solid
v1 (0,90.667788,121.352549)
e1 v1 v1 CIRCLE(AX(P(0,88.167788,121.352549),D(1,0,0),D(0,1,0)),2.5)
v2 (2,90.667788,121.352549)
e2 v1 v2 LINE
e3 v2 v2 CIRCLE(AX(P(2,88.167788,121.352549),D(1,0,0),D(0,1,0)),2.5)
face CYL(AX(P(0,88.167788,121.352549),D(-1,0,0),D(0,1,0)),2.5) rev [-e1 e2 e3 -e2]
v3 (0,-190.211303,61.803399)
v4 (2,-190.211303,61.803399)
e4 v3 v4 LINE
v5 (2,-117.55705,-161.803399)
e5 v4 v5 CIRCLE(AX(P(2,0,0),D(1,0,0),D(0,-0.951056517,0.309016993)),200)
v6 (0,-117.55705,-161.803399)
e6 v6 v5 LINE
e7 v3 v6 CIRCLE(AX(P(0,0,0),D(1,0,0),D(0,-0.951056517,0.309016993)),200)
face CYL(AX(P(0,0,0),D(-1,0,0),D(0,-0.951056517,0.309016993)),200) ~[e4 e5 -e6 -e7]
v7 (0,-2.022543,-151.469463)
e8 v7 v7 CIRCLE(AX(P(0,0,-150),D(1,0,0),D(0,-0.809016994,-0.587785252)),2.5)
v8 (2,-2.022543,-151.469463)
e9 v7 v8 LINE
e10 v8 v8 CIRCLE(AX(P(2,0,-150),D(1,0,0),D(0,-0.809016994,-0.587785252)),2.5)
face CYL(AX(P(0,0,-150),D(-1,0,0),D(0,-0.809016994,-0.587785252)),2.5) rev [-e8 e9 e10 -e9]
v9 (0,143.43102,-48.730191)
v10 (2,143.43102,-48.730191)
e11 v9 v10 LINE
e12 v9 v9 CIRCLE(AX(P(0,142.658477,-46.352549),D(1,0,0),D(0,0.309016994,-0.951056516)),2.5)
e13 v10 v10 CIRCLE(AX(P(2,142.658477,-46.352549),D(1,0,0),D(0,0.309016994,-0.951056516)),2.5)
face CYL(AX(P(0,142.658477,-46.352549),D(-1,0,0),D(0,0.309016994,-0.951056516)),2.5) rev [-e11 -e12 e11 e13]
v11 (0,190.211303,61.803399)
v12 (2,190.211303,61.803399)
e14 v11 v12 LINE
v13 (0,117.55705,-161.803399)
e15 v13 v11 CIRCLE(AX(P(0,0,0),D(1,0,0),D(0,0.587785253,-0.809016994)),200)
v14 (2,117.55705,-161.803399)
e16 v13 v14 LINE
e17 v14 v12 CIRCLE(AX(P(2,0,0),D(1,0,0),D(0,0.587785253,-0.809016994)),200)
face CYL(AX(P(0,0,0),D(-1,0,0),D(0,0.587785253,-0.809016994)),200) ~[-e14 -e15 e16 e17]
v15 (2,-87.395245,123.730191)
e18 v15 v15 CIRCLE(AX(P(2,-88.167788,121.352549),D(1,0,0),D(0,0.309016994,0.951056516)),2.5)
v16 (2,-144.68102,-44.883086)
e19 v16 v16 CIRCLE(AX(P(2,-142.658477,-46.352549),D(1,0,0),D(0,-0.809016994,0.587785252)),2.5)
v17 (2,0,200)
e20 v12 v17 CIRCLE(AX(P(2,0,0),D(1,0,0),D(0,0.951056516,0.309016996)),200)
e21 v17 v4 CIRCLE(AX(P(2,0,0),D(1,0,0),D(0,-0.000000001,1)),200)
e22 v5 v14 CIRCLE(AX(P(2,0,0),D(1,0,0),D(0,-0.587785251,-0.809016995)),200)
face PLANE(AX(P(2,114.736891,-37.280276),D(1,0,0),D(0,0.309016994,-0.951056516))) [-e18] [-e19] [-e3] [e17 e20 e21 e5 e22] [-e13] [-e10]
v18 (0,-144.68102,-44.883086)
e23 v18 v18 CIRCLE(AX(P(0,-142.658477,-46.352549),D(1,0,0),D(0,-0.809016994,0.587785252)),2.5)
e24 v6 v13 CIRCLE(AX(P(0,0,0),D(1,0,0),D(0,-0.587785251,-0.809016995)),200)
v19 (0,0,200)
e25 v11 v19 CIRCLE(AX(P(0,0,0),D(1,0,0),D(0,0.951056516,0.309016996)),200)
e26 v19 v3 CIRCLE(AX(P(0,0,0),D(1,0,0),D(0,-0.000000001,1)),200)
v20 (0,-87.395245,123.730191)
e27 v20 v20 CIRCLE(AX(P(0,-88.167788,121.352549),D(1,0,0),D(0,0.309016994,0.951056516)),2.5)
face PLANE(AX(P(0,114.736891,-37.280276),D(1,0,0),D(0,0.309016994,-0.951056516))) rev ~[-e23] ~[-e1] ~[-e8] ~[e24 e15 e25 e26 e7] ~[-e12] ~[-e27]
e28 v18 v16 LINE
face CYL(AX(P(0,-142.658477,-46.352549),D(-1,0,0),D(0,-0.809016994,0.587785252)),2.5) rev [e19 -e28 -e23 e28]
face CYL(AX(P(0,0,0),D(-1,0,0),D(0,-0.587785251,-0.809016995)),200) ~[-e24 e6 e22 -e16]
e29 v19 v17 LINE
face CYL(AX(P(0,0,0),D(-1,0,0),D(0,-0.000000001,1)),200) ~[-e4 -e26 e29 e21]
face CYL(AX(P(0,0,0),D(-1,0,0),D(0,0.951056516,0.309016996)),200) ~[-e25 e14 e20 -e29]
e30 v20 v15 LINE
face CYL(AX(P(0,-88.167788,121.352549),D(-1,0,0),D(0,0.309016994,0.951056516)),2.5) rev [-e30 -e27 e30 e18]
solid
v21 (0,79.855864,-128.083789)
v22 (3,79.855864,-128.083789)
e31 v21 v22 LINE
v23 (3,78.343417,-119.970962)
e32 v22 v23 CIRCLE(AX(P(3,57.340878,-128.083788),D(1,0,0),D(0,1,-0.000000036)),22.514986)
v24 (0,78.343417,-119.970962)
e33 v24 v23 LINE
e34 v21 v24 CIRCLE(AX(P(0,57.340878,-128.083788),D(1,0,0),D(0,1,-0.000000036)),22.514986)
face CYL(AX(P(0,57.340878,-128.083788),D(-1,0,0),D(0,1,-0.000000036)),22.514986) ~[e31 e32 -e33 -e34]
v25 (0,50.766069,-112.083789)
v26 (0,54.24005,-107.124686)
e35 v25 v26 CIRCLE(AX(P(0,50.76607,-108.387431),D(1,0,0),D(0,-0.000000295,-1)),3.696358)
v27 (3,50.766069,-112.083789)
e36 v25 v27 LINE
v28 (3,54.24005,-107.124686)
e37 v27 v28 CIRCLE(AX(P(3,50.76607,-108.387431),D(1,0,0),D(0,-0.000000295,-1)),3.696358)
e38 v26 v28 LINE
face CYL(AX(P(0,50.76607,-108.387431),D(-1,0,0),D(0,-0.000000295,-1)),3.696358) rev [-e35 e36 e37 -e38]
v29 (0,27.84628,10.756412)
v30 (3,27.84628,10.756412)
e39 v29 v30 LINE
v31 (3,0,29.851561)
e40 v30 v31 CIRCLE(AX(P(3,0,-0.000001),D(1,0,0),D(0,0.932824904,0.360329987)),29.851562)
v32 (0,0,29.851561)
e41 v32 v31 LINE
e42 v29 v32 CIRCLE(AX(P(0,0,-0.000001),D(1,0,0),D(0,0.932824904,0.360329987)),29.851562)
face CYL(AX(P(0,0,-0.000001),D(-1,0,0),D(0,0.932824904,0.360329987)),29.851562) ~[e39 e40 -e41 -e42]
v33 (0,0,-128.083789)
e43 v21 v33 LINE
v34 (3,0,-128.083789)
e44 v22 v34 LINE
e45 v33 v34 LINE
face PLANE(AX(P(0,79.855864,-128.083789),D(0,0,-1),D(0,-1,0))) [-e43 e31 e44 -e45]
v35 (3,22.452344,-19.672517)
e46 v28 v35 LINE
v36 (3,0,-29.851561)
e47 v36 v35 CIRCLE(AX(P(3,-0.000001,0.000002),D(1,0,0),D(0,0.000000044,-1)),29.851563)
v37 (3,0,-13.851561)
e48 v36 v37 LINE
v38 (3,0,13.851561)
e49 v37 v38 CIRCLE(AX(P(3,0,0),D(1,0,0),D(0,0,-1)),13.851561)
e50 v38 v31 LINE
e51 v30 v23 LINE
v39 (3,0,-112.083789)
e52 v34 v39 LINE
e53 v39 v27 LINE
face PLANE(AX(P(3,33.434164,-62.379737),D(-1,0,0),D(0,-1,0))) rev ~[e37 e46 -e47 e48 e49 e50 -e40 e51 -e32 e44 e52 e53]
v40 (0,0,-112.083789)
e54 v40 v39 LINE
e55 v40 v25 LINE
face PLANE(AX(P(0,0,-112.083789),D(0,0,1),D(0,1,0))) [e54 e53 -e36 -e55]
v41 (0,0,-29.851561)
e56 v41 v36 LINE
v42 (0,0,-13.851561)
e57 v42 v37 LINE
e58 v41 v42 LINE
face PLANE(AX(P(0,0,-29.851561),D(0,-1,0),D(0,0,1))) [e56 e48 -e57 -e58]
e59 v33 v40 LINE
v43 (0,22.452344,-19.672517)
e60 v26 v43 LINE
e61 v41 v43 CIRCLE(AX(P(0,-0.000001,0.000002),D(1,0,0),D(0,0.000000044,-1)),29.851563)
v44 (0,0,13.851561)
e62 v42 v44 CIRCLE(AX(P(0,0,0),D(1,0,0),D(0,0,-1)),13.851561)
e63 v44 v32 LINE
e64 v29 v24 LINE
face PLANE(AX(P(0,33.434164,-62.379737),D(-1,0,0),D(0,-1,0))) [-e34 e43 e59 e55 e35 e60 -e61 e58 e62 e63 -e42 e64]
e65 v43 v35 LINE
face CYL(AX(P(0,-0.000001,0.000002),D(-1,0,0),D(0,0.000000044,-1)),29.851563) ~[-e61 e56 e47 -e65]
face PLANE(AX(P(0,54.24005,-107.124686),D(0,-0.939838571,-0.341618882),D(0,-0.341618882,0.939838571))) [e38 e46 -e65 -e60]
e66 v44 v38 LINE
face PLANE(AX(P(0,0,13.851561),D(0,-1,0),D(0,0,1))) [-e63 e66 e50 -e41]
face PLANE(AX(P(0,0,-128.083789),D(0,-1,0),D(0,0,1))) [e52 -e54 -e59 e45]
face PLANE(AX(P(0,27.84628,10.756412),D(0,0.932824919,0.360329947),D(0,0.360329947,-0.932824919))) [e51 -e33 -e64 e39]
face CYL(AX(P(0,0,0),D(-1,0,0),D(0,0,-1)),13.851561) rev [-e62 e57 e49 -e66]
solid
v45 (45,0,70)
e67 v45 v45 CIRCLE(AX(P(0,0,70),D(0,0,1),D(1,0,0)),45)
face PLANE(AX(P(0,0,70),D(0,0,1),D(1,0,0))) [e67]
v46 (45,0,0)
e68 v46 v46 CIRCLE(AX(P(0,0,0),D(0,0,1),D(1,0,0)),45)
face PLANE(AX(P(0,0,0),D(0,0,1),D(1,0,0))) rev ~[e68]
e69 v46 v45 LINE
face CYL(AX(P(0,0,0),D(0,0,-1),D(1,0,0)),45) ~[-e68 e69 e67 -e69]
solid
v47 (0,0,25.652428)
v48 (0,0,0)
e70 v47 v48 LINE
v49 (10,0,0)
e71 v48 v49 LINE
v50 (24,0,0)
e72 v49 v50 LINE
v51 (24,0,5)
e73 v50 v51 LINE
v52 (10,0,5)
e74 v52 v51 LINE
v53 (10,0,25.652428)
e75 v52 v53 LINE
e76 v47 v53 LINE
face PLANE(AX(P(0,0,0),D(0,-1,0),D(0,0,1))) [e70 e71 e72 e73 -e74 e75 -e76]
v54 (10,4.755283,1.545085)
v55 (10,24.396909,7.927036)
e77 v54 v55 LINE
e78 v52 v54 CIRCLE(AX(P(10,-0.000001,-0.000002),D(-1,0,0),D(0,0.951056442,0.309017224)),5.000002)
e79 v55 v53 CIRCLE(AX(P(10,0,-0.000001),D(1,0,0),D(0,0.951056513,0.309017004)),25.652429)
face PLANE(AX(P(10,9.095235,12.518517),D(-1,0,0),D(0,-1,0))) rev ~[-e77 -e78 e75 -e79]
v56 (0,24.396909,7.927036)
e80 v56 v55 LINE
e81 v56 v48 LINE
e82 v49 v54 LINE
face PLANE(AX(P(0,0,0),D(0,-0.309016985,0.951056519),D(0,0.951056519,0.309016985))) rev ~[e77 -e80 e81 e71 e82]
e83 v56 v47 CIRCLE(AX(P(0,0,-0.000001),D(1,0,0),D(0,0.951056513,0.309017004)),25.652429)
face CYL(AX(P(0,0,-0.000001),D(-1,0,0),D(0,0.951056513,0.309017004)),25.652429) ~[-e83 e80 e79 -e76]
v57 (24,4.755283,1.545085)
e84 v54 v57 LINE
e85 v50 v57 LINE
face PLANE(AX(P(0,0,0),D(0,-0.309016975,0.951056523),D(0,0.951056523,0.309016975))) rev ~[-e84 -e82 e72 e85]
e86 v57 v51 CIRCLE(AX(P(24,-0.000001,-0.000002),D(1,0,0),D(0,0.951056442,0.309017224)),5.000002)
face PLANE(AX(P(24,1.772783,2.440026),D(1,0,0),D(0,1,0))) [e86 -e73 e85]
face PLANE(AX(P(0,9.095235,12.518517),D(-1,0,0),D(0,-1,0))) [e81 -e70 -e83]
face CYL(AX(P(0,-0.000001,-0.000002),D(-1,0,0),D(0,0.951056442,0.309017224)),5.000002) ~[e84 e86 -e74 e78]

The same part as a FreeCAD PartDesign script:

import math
import FreeCAD as App
import Part
import Sketcher
from FreeCAD import Vector
Q = App.Units.Quantity

doc = App.newDocument("Part")
body = doc.addObject("PartDesign::Body", "Body")

sketch1 = body.newObject("Sketcher::SketchObject", "Sketch")
sketch1.AttachmentSupport = (doc.getObject("YZ_Plane"), [""])
sketch1.MapMode = "FlatFace"
sketch1.addGeometry([
    Part.ArcOfCircle(Part.Circle(Vector(0, 0, 0), Vector(0, 0, 1), 13.851561), math.radians(-90), math.radians(90)),
    Part.LineSegment(Vector(0, -13.851561, 0), Vector(0, -29.851561, 0)),
    Part.ArcOfCircle(Part.Circle(Vector(-0.000001, 0.000002, 0), Vector(0, 0, 1), 29.851563), math.radians(-89.999997), math.radians(-41.224517)),
    Part.LineSegment(Vector(22.452344, -19.672517, 0), Vector(54.24005, -107.124686, 0)),
    Part.ArcOfCircle(Part.Circle(Vector(50.76607, -108.387431, 0), Vector(0, 0, 1), 3.696358), math.radians(-90.000017), math.radians(19.975527)),
    Part.LineSegment(Vector(50.766069, -112.083789, 0), Vector(0, -112.083789, 0)),
    Part.LineSegment(Vector(0, -112.083789, 0), Vector(0, -128.083789, 0)),
    Part.LineSegment(Vector(0, -128.083789, 0), Vector(79.855864, -128.083789, 0)),
    Part.ArcOfCircle(Part.Circle(Vector(57.340878, -128.083788, 0), Vector(0, 0, 1), 22.514986), math.radians(-0.000002), math.radians(21.120468)),
    Part.LineSegment(Vector(78.343417, -119.970962, 0), Vector(27.84628, 10.756412, 0)),
    Part.ArcOfCircle(Part.Circle(Vector(0, -0.000001, 0), Vector(0, 0, 1), 29.851562), math.radians(21.120463), math.radians(89.999999)),
    Part.LineSegment(Vector(0, 29.851561, 0), Vector(0, 13.851561, 0)),
], False)
sketch1.addConstraint([
    Sketcher.Constraint("Coincident", 0, 1, 1, 1),
    Sketcher.Constraint("Coincident", 1, 2, 2, 1),
    Sketcher.Constraint("Coincident", 2, 2, 3, 1),
    Sketcher.Constraint("Coincident", 3, 2, 4, 2),
    Sketcher.Constraint("Coincident", 4, 1, 5, 1),
    Sketcher.Constraint("Coincident", 5, 2, 6, 1),
    Sketcher.Constraint("Coincident", 6, 2, 7, 1),
    Sketcher.Constraint("Coincident", 7, 2, 8, 1),
    Sketcher.Constraint("Coincident", 8, 2, 9, 1),
    Sketcher.Constraint("Coincident", 9, 2, 10, 1),
    Sketcher.Constraint("Coincident", 10, 2, 11, 1),
    Sketcher.Constraint("Coincident", 11, 2, 0, 2),
    Sketcher.Constraint("Vertical", 1),
    Sketcher.Constraint("Horizontal", 5),
    Sketcher.Constraint("Vertical", 6),
    Sketcher.Constraint("Horizontal", 7),
    Sketcher.Constraint("Vertical", 11),
    Sketcher.Constraint("Coincident", 0, 3, -1, 1),
    Sketcher.Constraint("Coincident", 2, 3, -1, 1),
    Sketcher.Constraint("Coincident", 10, 3, -1, 1),
    Sketcher.Constraint("PointOnObject", 0, 1, -2),
    Sketcher.Constraint("PointOnObject", 5, 2, -2),
    Sketcher.Constraint("PointOnObject", 10, 2, -2),
    Sketcher.Constraint("DistanceY", 1, 2, 1, 1, Q("16 mm")),
    Sketcher.Constraint("DistanceY", 6, 2, 6, 1, Q("16 mm")),
    Sketcher.Constraint("DistanceY", 11, 2, 11, 1, Q("16 mm")),
    Sketcher.Constraint("DistanceY", 8, 3, 4, 1, Q("15.999999 mm")),
    Sketcher.Constraint("Radius", 0, Q("13.851561 mm")),
    Sketcher.Constraint("Radius", 4, Q("3.696358 mm")),
    Sketcher.Constraint("Radius", 8, Q("22.514986 mm")),
    Sketcher.Constraint("DistanceX", 5, 2, 5, 1, Q("50.766069 mm")),
    Sketcher.Constraint("DistanceX", 7, 1, 7, 2, Q("79.855864 mm")),
    Sketcher.Constraint("DistanceX", -1, 1, 4, 3, Q("50.76607 mm")),
    Sketcher.Constraint("DistanceY", 4, 3, -1, 1, Q("108.387431 mm")),
    Sketcher.Constraint("DistanceX", -1, 1, 3, 2, Q("54.24005 mm")),
    Sketcher.Constraint("DistanceY", 8, 2, -1, 1, Q("119.970962 mm")),
    Sketcher.Constraint("DistanceX", -1, 1, 9, 2, Q("27.84628 mm")),
    Sketcher.Constraint("DistanceY", 2, 2, 2, 3, Q("19.672519 mm")),
])
pad1 = body.newObject("PartDesign::Pad", "Pad")
pad1.Profile = sketch1
pad1.Length = 3
body2 = doc.addObject("PartDesign::Body", "Body001")

sketch2 = body2.newObject("Sketcher::SketchObject", "Sketch001")
sketch2.AttachmentSupport = (doc.getObject("YZ_Plane001"), [""])
sketch2.MapMode = "FlatFace"
sketch2.addGeometry([
    Part.LineSegment(Vector(0, 26, 0), Vector(0, 0, 0)),
    Part.LineSegment(Vector(0, 0, 0), Vector(24, 8, 0)),
    Part.ArcOfCircle(Part.Circle(Vector(0, 0, 0), Vector(0, 0, 1), 26), math.radians(18), math.radians(90)),
], False)
sketch2.addConstraint([
    Sketcher.Constraint("Coincident", 0, 2, 1, 1),
    Sketcher.Constraint("Coincident", 1, 2, 2, 1),
    Sketcher.Constraint("Coincident", 2, 2, 0, 1),
    Sketcher.Constraint("Vertical", 0),
    Sketcher.Constraint("Coincident", 2, 3, -1, 1),
    Sketcher.Constraint("Coincident", 0, 2, -1, 1),
    Sketcher.Constraint("Angle", 1, Q("17.999999 deg")),
    Sketcher.Constraint("Radius", 2, Q("25.652429 mm")),
])
pad2 = body2.newObject("PartDesign::Pad", "Pad001")
pad2.Profile = sketch2
pad2.Length = 10

sketch3 = body2.newObject("Sketcher::SketchObject", "Sketch002")
sketch3.AttachmentSupport = (doc.getObject("YZ_Plane001"), [""])
sketch3.MapMode = "FlatFace"
sketch3.addGeometry([
    Part.ArcOfCircle(Part.Circle(Vector(0, 0, 0), Vector(0, 0, 1), 5), math.radians(18), math.radians(90)),
    Part.LineSegment(Vector(0, 5, 0), Vector(0, 0, 0)),
    Part.LineSegment(Vector(0, 0, 0), Vector(5, 2, 0)),
], False)
sketch3.addConstraint([
    Sketcher.Constraint("Coincident", 0, 2, 1, 1),
    Sketcher.Constraint("Coincident", 1, 2, 2, 1),
    Sketcher.Constraint("Coincident", 2, 2, 0, 1),
    Sketcher.Constraint("Vertical", 1),
    Sketcher.Constraint("Coincident", 0, 3, -1, 1),
    Sketcher.Constraint("Coincident", 1, 2, -1, 1),
    Sketcher.Constraint("Radius", 0, Q("5.000002 mm")),
    Sketcher.Constraint("Angle", 2, Q("17.999999 deg")),
])
pad3 = body2.newObject("PartDesign::Pad", "Pad002")
pad3.Profile = sketch3
pad3.Length = 24
body3 = doc.addObject("PartDesign::Body", "Body002")

sketch4 = body3.newObject("Sketcher::SketchObject", "Sketch003")
sketch4.AttachmentSupport = (doc.getObject("XY_Plane002"), [""])
sketch4.MapMode = "FlatFace"
sketch4.addGeometry(Part.Circle(Vector(0, 0, 0), Vector(0, 0, 1), 45), False)
sketch4.addConstraint([
    Sketcher.Constraint("Coincident", 0, 3, -1, 1),
    Sketcher.Constraint("Diameter", 0, Q("90 mm")),
])
pad4 = body3.newObject("PartDesign::Pad", "Pad003")
pad4.Profile = sketch4
pad4.Length = 70
body4 = doc.addObject("PartDesign::Body", "Body003")

sketch5 = body4.newObject("Sketcher::SketchObject", "Sketch004")
sketch5.AttachmentSupport = (doc.getObject("YZ_Plane003"), [""])
sketch5.MapMode = "FlatFace"
sketch5.addGeometry([
    Part.ArcOfCircle(Part.Circle(Vector(0, 0, 0), Vector(0, 0, 1), 200), math.radians(18), math.radians(90)),
    Part.LineSegment(Vector(0, 200, 0), Vector(0, 0, 0)),
    Part.LineSegment(Vector(0, 0, 0), Vector(190.2, 61.8, 0)),
    Part.Circle(Vector(88.2, 121.4, 0), Vector(0, 0, 1), 2.5),
], False)
sketch5.addConstraint([
    Sketcher.Constraint("Coincident", 0, 2, 1, 1),
    Sketcher.Constraint("Coincident", 1, 2, 2, 1),
    Sketcher.Constraint("Coincident", 2, 2, 0, 1),
    Sketcher.Constraint("Vertical", 1),
    Sketcher.Constraint("Coincident", 0, 3, -1, 1),
    Sketcher.Constraint("Coincident", 1, 2, -1, 1),
    Sketcher.Constraint("Diameter", 3, Q("5 mm")),
    Sketcher.Constraint("Radius", 0, Q("200 mm")),
    Sketcher.Constraint("Angle", 2, Q("18 deg")),
    Sketcher.Constraint("DistanceX", -1, 1, 3, 3, Q("88.167788 mm")),
    Sketcher.Constraint("DistanceY", -1, 1, 3, 3, Q("121.352549 mm")),
])
pad5 = body4.newObject("PartDesign::Pad", "Pad004")
pad5.Profile = sketch5
pad5.Length = 2
doc.recompute()

polarpattern = body4.newObject("PartDesign::PolarPattern", "PolarPattern")
polarpattern.Originals = [pad5]
polarpattern.Axis = (doc.getObject("X_Axis003"), [""])
polarpattern.Angle = 360
polarpattern.Occurrences = 5
body4.Tip = polarpattern

doc.recompute()
